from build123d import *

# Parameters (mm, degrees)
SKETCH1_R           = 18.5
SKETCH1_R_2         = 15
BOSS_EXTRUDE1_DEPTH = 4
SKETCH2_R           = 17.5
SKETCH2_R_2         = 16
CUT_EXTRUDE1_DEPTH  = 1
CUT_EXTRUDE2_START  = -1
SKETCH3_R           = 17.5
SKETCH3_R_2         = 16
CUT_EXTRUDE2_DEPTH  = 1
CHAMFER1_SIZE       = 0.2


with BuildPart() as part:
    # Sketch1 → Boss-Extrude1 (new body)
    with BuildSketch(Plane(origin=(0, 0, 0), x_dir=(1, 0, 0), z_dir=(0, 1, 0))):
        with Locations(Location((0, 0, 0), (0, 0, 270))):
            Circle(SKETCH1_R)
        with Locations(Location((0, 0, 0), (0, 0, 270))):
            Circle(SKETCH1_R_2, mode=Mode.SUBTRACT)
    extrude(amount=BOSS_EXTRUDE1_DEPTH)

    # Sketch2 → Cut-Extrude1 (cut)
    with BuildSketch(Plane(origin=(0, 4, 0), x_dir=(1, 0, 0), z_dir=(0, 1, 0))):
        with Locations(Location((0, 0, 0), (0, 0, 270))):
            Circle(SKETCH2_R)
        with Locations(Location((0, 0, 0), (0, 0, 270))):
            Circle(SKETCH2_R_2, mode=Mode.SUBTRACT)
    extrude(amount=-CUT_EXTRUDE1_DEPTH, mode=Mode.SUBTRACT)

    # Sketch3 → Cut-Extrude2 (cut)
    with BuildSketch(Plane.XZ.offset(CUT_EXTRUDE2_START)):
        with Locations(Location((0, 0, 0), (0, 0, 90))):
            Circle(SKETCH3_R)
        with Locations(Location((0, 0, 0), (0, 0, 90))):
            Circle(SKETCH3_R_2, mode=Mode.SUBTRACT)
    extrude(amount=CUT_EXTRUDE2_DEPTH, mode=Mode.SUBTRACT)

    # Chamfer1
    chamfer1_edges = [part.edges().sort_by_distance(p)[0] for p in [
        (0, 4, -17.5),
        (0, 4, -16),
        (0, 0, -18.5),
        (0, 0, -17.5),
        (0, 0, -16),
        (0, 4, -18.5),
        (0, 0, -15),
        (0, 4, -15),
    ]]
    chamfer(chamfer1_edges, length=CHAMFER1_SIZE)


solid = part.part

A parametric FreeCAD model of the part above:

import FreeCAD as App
import Part
import Sketcher

V = App.Vector
Q = App.Units.Quantity


def edges_at(feature, points):
    """Names of the edges that pass closest to the given points."""
    edges = feature.Shape.Edges
    near = lambda p: min(range(len(edges)), key=lambda i: edges[i].distToShape(Part.Vertex(*p))[0])
    return sorted({f"Edge{near(p) + 1}" for p in points})

doc = App.newDocument("Part")
params = doc.addObject("Spreadsheet::Sheet", "Params")
for row, (alias, value) in enumerate([
    ("sketch1_diameter", "37 mm"),
    ("sketch1_diameter2", "30 mm"),
    ("pad1_length", "4 mm"),
    ("sketch2_diameter", "35 mm"),
    ("sketch2_diameter2", "32 mm"),
    ("pocket1_length", "1 mm"),
    ("sketch3_diameter", "35 mm"),
    ("sketch3_diameter2", "32 mm"),
    ("pocket2_length", "1 mm"),
    ("chamfer_size", "0.2 mm"),
], start=1):
    params.set(f"A{row}", alias)
    params.set(f"B{row}", "=" + value)
    params.setAlias(f"B{row}", alias)

body = doc.addObject("PartDesign::Body", "Body")

sketch1 = body.newObject("Sketcher::SketchObject", "Sketch")
sketch1.AttachmentSupport = (doc.getObject("XZ_Plane"), [""])
sketch1.MapMode = "FlatFace"
sketch1.addGeometry([
    Part.Circle(V(0, 0, 0), V(0, 0, 1), 18.5),
    Part.Circle(V(0, 0, 0), V(0, 0, 1), 15),
], False)
sketch1.addConstraint([
    Sketcher.Constraint("Coincident", 0, 3, -1, 1),
    Sketcher.Constraint("Coincident", 1, 3, -1, 1),
    Sketcher.Constraint("Diameter", 0, Q("37 mm")),
    Sketcher.Constraint("Diameter", 1, Q("30 mm")),
])
sketch1.setExpression("Constraints[2]", "Params.sketch1_diameter")
sketch1.setExpression("Constraints[3]", "Params.sketch1_diameter2")
pad1 = body.newObject("PartDesign::Pad", "Pad")
pad1.Profile = sketch1
pad1.setExpression("Length", "Params.pad1_length")
pad1.Reversed = True

sketch2 = body.newObject("Sketcher::SketchObject", "Sketch001")
sketch2.AttachmentSupport = (doc.getObject("XZ_Plane"), [""])
sketch2.MapMode = "FlatFace"
sketch2.AttachmentOffset = App.Placement(V(0, 0, -4), App.Rotation())
sketch2.addGeometry([
    Part.Circle(V(0, 0, 0), V(0, 0, 1), 17.5),
    Part.Circle(V(0, 0, 0), V(0, 0, 1), 16),
], False)
sketch2.addConstraint([
    Sketcher.Constraint("Coincident", 0, 3, -1, 1),
    Sketcher.Constraint("Coincident", 1, 3, -1, 1),
    Sketcher.Constraint("Diameter", 0, Q("35 mm")),
    Sketcher.Constraint("Diameter", 1, Q("32 mm")),
])
sketch2.setExpression("Constraints[2]", "Params.sketch2_diameter")
sketch2.setExpression("Constraints[3]", "Params.sketch2_diameter2")
pocket1 = body.newObject("PartDesign::Pocket", "Pocket")
pocket1.Profile = sketch2
pocket1.setExpression("Length", "Params.pocket1_length")
pocket1.Reversed = True

sketch3 = body.newObject("Sketcher::SketchObject", "Sketch002")
sketch3.AttachmentSupport = (doc.getObject("XZ_Plane"), [""])
sketch3.MapMode = "FlatFace"
sketch3.AttachmentOffset = App.Placement(V(0, 0, -1), App.Rotation())
sketch3.addGeometry([
    Part.Circle(V(0, 0, 0), V(0, 0, 1), 17.5),
    Part.Circle(V(0, 0, 0), V(0, 0, 1), 16),
], False)
sketch3.addConstraint([
    Sketcher.Constraint("Coincident", 0, 3, -1, 1),
    Sketcher.Constraint("Coincident", 1, 3, -1, 1),
    Sketcher.Constraint("Diameter", 0, Q("35 mm")),
    Sketcher.Constraint("Diameter", 1, Q("32 mm")),
])
sketch3.setExpression("Constraints[2]", "Params.sketch3_diameter")
sketch3.setExpression("Constraints[3]", "Params.sketch3_diameter2")
pocket2 = body.newObject("PartDesign::Pocket", "Pocket001")
pocket2.Profile = sketch3
pocket2.setExpression("Length", "Params.pocket2_length")
pocket2.Reversed = True
doc.recompute()

chamfer = body.newObject("PartDesign::Chamfer", "Chamfer")
chamfer.Base = (pocket2, edges_at(pocket2, [
    (0, 4, -17.5),
    (0, 4, -16),
    (0, 0, -18.5),
    (0, 0, -17.5),
    (0, 0, -16),
    (0, 4, -18.5),
    (0, 0, -15),
    (0, 4, -15),
]))
chamfer.setExpression("Size", "Params.chamfer_size")

doc.recompute()
